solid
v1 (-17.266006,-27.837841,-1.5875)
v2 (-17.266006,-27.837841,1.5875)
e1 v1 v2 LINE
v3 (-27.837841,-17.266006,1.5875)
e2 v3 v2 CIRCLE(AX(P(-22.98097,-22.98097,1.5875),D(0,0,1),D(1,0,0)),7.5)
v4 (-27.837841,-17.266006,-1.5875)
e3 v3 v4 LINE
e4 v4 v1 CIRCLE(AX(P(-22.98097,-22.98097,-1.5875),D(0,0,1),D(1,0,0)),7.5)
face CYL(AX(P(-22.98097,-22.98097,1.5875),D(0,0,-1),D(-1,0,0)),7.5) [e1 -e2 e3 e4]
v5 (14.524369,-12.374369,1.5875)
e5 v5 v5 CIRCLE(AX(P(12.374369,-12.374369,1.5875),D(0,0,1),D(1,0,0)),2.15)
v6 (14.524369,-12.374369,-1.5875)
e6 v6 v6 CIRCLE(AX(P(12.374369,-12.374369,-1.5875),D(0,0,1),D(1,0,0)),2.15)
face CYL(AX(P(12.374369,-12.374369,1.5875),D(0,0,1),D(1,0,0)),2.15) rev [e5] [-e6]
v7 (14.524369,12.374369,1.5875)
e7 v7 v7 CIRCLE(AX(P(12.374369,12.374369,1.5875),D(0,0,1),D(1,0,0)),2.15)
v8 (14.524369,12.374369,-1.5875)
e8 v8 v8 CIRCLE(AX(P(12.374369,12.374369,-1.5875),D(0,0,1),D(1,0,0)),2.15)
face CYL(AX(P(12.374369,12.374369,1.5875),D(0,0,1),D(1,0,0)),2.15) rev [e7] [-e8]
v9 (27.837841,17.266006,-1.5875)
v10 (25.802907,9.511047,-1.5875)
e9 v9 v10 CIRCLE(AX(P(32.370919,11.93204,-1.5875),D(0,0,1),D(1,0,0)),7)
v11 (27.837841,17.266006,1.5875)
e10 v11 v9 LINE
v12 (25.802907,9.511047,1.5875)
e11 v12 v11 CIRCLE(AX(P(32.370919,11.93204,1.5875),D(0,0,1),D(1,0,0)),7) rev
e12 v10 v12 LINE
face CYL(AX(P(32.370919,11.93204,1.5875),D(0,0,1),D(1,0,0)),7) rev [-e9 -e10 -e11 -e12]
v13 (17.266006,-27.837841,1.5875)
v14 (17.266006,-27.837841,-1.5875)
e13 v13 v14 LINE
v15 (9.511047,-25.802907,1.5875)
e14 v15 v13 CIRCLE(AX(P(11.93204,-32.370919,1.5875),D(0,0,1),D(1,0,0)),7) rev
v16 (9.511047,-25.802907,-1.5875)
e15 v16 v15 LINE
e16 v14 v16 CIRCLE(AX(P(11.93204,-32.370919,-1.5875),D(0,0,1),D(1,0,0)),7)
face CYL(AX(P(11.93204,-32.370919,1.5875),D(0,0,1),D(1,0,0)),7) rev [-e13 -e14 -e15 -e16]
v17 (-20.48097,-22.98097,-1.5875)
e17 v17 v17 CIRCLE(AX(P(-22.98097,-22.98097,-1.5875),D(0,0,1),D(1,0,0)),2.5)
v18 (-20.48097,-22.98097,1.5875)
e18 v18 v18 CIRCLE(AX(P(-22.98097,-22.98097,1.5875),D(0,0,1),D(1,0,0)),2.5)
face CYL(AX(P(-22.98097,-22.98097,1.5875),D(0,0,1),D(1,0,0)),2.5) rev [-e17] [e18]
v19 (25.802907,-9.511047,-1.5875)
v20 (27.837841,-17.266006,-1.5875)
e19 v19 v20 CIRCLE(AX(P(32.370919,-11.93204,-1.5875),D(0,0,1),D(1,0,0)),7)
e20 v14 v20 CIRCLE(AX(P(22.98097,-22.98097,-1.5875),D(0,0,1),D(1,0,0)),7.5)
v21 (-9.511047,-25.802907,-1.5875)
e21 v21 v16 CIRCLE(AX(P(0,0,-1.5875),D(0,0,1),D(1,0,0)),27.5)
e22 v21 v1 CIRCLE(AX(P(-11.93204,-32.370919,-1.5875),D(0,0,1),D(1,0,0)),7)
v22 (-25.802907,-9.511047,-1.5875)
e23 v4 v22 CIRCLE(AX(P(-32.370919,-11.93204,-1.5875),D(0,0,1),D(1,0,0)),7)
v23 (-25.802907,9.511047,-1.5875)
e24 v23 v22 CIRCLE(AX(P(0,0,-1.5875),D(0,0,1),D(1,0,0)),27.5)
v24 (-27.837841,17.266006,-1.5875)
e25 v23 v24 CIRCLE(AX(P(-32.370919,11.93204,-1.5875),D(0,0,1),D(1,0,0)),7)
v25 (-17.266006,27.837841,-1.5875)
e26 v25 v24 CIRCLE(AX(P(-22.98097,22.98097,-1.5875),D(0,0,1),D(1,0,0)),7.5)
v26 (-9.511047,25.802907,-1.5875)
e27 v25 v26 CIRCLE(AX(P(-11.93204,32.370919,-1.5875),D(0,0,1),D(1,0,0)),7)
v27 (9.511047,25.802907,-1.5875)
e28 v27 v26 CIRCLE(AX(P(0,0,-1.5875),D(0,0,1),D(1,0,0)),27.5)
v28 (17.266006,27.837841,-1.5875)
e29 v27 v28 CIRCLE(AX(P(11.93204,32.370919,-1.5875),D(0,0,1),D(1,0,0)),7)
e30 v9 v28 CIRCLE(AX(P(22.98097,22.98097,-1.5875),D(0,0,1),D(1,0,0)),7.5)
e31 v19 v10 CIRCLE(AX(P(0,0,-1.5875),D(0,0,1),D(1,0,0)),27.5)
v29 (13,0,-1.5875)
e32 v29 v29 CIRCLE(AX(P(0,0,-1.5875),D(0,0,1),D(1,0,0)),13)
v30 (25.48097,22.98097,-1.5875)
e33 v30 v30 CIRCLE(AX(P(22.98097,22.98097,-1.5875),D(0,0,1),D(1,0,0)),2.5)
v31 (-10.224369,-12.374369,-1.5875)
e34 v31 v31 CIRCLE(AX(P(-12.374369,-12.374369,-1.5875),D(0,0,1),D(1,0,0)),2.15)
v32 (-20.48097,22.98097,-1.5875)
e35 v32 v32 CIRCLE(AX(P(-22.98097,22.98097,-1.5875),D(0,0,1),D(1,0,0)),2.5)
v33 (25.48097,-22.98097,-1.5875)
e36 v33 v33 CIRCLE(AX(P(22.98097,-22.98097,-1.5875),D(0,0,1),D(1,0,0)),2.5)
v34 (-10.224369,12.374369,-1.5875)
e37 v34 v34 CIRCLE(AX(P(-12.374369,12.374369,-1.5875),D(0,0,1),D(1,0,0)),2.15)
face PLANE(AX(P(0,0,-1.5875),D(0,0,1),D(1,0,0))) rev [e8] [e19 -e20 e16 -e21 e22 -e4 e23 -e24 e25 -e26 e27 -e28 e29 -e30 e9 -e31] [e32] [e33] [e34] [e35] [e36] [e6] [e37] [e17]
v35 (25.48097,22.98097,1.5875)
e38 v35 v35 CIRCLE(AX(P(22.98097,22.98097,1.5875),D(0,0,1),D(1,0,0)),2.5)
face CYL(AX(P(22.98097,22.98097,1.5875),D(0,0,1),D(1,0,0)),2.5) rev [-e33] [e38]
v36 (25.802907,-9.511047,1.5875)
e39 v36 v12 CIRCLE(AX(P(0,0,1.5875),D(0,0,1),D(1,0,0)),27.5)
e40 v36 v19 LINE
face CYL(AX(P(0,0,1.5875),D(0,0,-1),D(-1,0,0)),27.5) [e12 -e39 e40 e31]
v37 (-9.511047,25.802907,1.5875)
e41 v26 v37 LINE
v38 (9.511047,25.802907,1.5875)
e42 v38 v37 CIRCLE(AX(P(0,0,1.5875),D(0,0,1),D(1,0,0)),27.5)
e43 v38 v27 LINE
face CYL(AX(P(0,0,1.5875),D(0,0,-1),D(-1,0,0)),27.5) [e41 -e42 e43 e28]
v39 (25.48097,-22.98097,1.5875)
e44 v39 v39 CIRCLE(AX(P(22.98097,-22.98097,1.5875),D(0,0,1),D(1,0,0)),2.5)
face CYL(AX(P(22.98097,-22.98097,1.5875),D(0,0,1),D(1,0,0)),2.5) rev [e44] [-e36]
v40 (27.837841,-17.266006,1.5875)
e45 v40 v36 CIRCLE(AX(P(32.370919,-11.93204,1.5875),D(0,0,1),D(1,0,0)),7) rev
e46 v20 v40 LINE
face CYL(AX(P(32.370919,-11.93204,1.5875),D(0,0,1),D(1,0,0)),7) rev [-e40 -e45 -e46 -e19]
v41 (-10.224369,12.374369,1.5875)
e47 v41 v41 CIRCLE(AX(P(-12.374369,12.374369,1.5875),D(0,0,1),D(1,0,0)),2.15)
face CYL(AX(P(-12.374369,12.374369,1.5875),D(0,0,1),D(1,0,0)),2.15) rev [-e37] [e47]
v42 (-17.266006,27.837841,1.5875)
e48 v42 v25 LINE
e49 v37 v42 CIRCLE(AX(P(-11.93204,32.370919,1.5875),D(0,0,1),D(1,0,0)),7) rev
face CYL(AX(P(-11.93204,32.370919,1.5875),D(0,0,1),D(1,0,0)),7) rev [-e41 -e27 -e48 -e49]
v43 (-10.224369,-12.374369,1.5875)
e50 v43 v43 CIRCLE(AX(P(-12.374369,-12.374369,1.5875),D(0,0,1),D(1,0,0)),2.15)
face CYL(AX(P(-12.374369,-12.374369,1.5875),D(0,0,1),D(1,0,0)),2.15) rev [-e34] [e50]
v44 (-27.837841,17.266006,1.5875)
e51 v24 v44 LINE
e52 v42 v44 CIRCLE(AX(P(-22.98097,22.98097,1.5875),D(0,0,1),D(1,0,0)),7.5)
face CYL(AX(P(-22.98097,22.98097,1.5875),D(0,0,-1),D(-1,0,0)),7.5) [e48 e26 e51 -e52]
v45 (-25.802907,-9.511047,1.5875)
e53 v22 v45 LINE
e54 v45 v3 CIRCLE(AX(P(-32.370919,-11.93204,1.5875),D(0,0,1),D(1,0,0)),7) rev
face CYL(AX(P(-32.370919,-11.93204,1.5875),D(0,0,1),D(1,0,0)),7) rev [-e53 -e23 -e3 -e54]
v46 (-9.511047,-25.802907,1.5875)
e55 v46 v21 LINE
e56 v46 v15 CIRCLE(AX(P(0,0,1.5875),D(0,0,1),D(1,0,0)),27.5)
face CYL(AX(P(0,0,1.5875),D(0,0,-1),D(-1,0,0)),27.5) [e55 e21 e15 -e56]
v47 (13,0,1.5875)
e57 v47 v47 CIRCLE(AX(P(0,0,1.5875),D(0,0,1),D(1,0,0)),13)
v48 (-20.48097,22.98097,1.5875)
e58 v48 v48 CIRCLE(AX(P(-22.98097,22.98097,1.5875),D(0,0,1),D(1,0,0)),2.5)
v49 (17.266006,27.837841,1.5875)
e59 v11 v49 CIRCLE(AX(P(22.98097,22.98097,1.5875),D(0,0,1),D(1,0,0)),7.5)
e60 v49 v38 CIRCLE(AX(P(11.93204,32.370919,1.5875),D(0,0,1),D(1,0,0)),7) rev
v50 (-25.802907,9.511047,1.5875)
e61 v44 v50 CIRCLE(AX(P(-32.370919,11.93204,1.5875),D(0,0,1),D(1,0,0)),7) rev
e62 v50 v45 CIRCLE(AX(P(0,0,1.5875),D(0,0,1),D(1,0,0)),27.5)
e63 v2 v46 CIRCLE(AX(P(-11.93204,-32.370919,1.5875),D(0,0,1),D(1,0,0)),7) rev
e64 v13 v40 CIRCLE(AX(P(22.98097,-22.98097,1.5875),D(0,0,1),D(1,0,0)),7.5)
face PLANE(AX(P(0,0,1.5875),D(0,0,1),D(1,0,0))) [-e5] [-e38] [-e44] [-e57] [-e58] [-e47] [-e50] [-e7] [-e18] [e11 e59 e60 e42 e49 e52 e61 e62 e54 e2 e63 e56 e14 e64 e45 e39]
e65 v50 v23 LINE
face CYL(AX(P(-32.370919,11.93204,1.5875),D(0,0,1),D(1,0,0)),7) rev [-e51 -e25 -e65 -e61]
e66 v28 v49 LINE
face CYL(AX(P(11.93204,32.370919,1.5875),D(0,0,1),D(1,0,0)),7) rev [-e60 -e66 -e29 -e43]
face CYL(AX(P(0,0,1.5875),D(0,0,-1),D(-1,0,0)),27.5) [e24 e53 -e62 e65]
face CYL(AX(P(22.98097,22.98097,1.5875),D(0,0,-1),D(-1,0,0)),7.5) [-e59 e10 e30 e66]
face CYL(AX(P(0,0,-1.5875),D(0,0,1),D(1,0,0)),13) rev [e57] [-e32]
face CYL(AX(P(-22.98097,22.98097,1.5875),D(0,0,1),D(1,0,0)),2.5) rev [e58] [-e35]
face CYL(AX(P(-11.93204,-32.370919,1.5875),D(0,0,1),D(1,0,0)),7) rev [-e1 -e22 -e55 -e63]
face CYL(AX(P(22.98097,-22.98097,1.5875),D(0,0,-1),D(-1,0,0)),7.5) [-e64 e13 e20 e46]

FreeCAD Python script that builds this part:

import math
import FreeCAD as App
import Part
import Sketcher


def edges_at(feature, points):
    """Names of the edges that pass closest to the given points."""
    edges = feature.Shape.Edges
    near = lambda p: min(range(len(edges)), key=lambda i: edges[i].distToShape(Part.Vertex(*p))[0])
    return sorted({f"Edge{near(p) + 1}" for p in points})

doc = App.newDocument("Part")
body = doc.addObject("PartDesign::Body", "Body")

sketch1 = body.newObject("Sketcher::SketchObject", "Sketch")
sketch1.AttachmentSupport = (doc.getObject("XY_Plane"), [""])
sketch1.MapMode = "FlatFace"
sketch1.addGeometry([
    Part.ArcOfCircle(Part.Circle(App.Vector(23, 23, 0), App.Vector(0, 0, 1), 8), math.radians(-92), math.radians(182)),
    Part.ArcOfCircle(Part.Circle(App.Vector(0, 0, 0), App.Vector(0, 0, 1), 28), math.radians(56), math.radians(124)),
    Part.ArcOfCircle(Part.Circle(App.Vector(-23, 23, 0), App.Vector(0, 0, 1), 8), math.radians(-2), math.radians(272)),
    Part.ArcOfCircle(Part.Circle(App.Vector(0, 0, 0), App.Vector(0, 0, 1), 28), math.radians(146), math.radians(214)),
    Part.ArcOfCircle(Part.Circle(App.Vector(-23, -23, 0), App.Vector(0, 0, 1), 8), math.radians(88), math.radians(362)),
    Part.ArcOfCircle(Part.Circle(App.Vector(0, 0, 0), App.Vector(0, 0, 1), 28), math.radians(-124), math.radians(-56)),
    Part.ArcOfCircle(Part.Circle(App.Vector(23, -23, 0), App.Vector(0, 0, 1), 8), math.radians(178), math.radians(452)),
    Part.ArcOfCircle(Part.Circle(App.Vector(0, 0, 0), App.Vector(0, 0, 1), 28), math.radians(-34), math.radians(34)),
], False)
sketch1.addConstraint([
    Sketcher.Constraint("Coincident", 0, 2, 1, 1),
    Sketcher.Constraint("Coincident", 1, 2, 2, 1),
    Sketcher.Constraint("Coincident", 2, 2, 3, 1),
    Sketcher.Constraint("Coincident", 3, 2, 4, 1),
    Sketcher.Constraint("Coincident", 4, 2, 5, 1),
    Sketcher.Constraint("Coincident", 5, 2, 6, 1),
    Sketcher.Constraint("Coincident", 6, 2, 7, 1),
    Sketcher.Constraint("Coincident", 7, 2, 0, 1),
    Sketcher.Constraint("Coincident", 1, 3, -1, 1),
    Sketcher.Constraint("Coincident", 3, 3, -1, 1),
    Sketcher.Constraint("Coincident", 5, 3, -1, 1),
    Sketcher.Constraint("Coincident", 7, 3, -1, 1),
    Sketcher.Constraint("Equal", 0, 2),
    Sketcher.Constraint("Equal", 1, 3),
    Sketcher.Constraint("Equal", 2, 4),
    Sketcher.Constraint("Equal", 3, 5),
    Sketcher.Constraint("Equal", 4, 6),
    Sketcher.Constraint("Equal", 5, 7),
    Sketcher.Constraint("Symmetric", 0, 3, 4, 3, -1, 1),
    Sketcher.Constraint("Symmetric", 2, 3, 6, 3, -1, 1),
    Sketcher.Constraint("Symmetric", 0, 3, 2, 3, -2),
    Sketcher.Constraint("Radius", 0, 7.5),
    Sketcher.Constraint("Radius", 1, 27.5),
    Sketcher.Constraint("DistanceX", -1, 1, 0, 3, 22.98097),
    Sketcher.Constraint("DistanceY", -1, 1, 0, 3, 22.98097),
])
pad1 = body.newObject("PartDesign::Pad", "Pad")
pad1.Profile = sketch1
pad1.Length = 3.175
pad1.Midplane = True
doc.recompute()

fillet = body.newObject("PartDesign::Fillet", "Fillet")
fillet.Base = (pad1, edges_at(pad1, [
    (15.485, -22.726, 0),
    (-15.485, -22.726, 0),
    (-22.726, -15.485, 0),
    (-22.726, 15.485, 0),
    (-15.485, 22.726, 0),
    (15.485, 22.726, 0),
    (22.726, 15.485, 0),
    (22.726, -15.485, 0),
]))
fillet.Radius = 7

sketch2 = body.newObject("Sketcher::SketchObject", "Sketch001")
sketch2.AttachmentSupport = (doc.getObject("XY_Plane"), [""])
sketch2.MapMode = "FlatFace"
sketch2.AttachmentOffset = App.Placement(App.Vector(0, 0, 1.5875), App.Rotation())
sketch2.addGeometry(Part.Circle(App.Vector(0, 0, 0), App.Vector(0, 0, 1), 13), False)
sketch2.addConstraint([
    Sketcher.Constraint("Coincident", 0, 3, -1, 1),
    Sketcher.Constraint("Diameter", 0, 26.0),
])
pocket1 = body.newObject("PartDesign::Pocket", "Pocket")
pocket1.Profile = sketch2
pocket1.Type = "ThroughAll"

sketch3 = body.newObject("Sketcher::SketchObject", "Sketch002")
sketch3.AttachmentSupport = (doc.getObject("XY_Plane"), [""])
sketch3.MapMode = "FlatFace"
sketch3.AttachmentOffset = App.Placement(App.Vector(0, 0, 1.5875), App.Rotation())
sketch3.addGeometry([
    Part.Circle(App.Vector(-12.4, 12.4, 0), App.Vector(0, 0, 1), 2.1),
    Part.Circle(App.Vector(12.4, 12.4, 0), App.Vector(0, 0, 1), 2.1),
    Part.Circle(App.Vector(12.4, -12.4, 0), App.Vector(0, 0, 1), 2.1),
    Part.Circle(App.Vector(-12.4, -12.4, 0), App.Vector(0, 0, 1), 2.1),
], False)
sketch3.addConstraint([
    Sketcher.Constraint("Equal", 0, 1),
    Sketcher.Constraint("Equal", 1, 2),
    Sketcher.Constraint("Equal", 2, 3),
    Sketcher.Constraint("Symmetric", 0, 3, 2, 3, -1, 1),
    Sketcher.Constraint("Symmetric", 1, 3, 3, 3, -1, 1),
    Sketcher.Constraint("Symmetric", 0, 3, 1, 3, -2),
    Sketcher.Constraint("Diameter", 0, 4.3),
    Sketcher.Constraint("DistanceX", 0, 3, -1, 1, 12.374369),
    Sketcher.Constraint("DistanceY", -1, 1, 0, 3, 12.374369),
])
doc.recompute()
hole = body.newObject("PartDesign::Hole", "Hole")
hole.Profile = sketch3
hole.ThreadType = "None"
hole.Diameter = 4.3
hole.DepthType = "ThroughAll"

sketch4 = body.newObject("Sketcher::SketchObject", "Sketch003")
sketch4.AttachmentSupport = (doc.getObject("XY_Plane"), [""])
sketch4.MapMode = "FlatFace"
sketch4.AttachmentOffset = App.Placement(App.Vector(0, 0, 1.5875), App.Rotation())
sketch4.addGeometry([
    Part.Circle(App.Vector(-23, 23, 0), App.Vector(0, 0, 1), 2.5),
    Part.Circle(App.Vector(23, 23, 0), App.Vector(0, 0, 1), 2.5),
    Part.Circle(App.Vector(23, -23, 0), App.Vector(0, 0, 1), 2.5),
    Part.Circle(App.Vector(-23, -23, 0), App.Vector(0, 0, 1), 2.5),
], False)
sketch4.addConstraint([
    Sketcher.Constraint("Equal", 0, 1),
    Sketcher.Constraint("Equal", 1, 2),
    Sketcher.Constraint("Equal", 2, 3),
    Sketcher.Constraint("Symmetric", 0, 3, 2, 3, -1, 1),
    Sketcher.Constraint("Symmetric", 1, 3, 3, 3, -1, 1),
    Sketcher.Constraint("Symmetric", 0, 3, 1, 3, -2),
    Sketcher.Constraint("Diameter", 0, 5.0),
    Sketcher.Constraint("DistanceX", 0, 3, -1, 1, 22.98097),
    Sketcher.Constraint("DistanceY", -1, 1, 0, 3, 22.98097),
])
doc.recompute()
hole2 = body.newObject("PartDesign::Hole", "Hole001")
hole2.Profile = sketch4
hole2.ThreadType = "None"
hole2.Diameter = 5
hole2.DepthType = "ThroughAll"

doc.recompute()
